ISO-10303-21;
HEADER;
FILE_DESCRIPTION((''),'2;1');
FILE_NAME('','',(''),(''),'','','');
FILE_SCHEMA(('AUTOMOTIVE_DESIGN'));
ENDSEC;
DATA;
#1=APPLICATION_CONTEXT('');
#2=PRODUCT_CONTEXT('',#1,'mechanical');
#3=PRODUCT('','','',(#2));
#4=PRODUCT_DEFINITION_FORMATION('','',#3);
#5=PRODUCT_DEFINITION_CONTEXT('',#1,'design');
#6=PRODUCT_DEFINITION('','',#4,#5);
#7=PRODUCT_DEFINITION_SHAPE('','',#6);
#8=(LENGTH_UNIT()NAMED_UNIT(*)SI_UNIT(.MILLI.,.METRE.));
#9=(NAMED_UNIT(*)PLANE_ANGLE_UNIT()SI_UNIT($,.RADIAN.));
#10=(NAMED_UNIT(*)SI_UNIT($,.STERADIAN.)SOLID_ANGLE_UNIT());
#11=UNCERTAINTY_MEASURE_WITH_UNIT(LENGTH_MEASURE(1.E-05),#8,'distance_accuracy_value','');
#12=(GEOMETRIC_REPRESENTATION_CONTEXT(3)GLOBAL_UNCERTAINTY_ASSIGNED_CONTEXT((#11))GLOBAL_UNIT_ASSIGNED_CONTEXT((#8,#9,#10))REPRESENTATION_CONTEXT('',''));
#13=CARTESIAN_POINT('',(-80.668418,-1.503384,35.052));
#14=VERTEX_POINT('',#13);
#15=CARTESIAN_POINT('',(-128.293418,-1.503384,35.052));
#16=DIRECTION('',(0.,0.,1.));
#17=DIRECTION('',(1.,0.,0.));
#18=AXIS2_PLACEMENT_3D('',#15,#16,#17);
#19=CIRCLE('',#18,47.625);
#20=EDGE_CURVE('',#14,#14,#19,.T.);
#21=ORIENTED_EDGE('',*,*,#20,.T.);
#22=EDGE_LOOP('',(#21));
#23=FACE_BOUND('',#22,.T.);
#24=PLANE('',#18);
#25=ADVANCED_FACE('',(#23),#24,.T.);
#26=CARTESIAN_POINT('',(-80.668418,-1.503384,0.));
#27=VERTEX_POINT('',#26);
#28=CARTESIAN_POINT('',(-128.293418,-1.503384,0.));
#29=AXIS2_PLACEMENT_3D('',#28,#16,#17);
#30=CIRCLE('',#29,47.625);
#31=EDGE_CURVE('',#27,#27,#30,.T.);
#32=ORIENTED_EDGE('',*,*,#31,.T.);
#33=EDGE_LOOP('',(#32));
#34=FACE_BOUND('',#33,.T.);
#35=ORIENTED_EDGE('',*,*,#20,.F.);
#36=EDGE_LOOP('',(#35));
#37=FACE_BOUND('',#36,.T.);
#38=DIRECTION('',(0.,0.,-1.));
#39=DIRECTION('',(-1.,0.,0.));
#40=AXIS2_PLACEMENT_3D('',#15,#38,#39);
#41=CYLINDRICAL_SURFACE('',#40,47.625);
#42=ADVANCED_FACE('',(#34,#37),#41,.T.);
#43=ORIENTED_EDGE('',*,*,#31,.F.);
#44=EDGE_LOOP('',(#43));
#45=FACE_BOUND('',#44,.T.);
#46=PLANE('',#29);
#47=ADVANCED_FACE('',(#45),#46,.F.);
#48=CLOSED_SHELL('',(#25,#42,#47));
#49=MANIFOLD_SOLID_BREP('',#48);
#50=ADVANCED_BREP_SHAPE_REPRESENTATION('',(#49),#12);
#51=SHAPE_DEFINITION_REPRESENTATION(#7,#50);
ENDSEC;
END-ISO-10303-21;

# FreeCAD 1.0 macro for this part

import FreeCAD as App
import Part
import Sketcher
from FreeCAD import Vector
Q = App.Units.Quantity

doc = App.newDocument("Part")
body = doc.addObject("PartDesign::Body", "Body")

sketch1 = doc.addObject("Sketcher::SketchObject", "Sketch")
body.addObject(sketch1)
sketch1.AttachmentSupport = (doc.XY_Plane, [""])
sketch1.MapMode = "FlatFace"
sketch1.addGeometry(Part.Circle(Vector(-128, -2, 0), Vector(0, 0, 1), 48), False)
sketch1.addConstraint(Sketcher.Constraint("Diameter", 0, Q("3.75 in")))
sketch1.addConstraint(Sketcher.Constraint("DistanceX", 0, 3, -1, 1, 128.293418))
sketch1.addConstraint(Sketcher.Constraint("DistanceY", 0, 3, -1, 1, 1.503384))
pad1 = doc.addObject("PartDesign::Pad", "Pad")
body.addObject(pad1)
pad1.Profile = sketch1
pad1.Length = Q("1.38 in")

doc.recompute()
